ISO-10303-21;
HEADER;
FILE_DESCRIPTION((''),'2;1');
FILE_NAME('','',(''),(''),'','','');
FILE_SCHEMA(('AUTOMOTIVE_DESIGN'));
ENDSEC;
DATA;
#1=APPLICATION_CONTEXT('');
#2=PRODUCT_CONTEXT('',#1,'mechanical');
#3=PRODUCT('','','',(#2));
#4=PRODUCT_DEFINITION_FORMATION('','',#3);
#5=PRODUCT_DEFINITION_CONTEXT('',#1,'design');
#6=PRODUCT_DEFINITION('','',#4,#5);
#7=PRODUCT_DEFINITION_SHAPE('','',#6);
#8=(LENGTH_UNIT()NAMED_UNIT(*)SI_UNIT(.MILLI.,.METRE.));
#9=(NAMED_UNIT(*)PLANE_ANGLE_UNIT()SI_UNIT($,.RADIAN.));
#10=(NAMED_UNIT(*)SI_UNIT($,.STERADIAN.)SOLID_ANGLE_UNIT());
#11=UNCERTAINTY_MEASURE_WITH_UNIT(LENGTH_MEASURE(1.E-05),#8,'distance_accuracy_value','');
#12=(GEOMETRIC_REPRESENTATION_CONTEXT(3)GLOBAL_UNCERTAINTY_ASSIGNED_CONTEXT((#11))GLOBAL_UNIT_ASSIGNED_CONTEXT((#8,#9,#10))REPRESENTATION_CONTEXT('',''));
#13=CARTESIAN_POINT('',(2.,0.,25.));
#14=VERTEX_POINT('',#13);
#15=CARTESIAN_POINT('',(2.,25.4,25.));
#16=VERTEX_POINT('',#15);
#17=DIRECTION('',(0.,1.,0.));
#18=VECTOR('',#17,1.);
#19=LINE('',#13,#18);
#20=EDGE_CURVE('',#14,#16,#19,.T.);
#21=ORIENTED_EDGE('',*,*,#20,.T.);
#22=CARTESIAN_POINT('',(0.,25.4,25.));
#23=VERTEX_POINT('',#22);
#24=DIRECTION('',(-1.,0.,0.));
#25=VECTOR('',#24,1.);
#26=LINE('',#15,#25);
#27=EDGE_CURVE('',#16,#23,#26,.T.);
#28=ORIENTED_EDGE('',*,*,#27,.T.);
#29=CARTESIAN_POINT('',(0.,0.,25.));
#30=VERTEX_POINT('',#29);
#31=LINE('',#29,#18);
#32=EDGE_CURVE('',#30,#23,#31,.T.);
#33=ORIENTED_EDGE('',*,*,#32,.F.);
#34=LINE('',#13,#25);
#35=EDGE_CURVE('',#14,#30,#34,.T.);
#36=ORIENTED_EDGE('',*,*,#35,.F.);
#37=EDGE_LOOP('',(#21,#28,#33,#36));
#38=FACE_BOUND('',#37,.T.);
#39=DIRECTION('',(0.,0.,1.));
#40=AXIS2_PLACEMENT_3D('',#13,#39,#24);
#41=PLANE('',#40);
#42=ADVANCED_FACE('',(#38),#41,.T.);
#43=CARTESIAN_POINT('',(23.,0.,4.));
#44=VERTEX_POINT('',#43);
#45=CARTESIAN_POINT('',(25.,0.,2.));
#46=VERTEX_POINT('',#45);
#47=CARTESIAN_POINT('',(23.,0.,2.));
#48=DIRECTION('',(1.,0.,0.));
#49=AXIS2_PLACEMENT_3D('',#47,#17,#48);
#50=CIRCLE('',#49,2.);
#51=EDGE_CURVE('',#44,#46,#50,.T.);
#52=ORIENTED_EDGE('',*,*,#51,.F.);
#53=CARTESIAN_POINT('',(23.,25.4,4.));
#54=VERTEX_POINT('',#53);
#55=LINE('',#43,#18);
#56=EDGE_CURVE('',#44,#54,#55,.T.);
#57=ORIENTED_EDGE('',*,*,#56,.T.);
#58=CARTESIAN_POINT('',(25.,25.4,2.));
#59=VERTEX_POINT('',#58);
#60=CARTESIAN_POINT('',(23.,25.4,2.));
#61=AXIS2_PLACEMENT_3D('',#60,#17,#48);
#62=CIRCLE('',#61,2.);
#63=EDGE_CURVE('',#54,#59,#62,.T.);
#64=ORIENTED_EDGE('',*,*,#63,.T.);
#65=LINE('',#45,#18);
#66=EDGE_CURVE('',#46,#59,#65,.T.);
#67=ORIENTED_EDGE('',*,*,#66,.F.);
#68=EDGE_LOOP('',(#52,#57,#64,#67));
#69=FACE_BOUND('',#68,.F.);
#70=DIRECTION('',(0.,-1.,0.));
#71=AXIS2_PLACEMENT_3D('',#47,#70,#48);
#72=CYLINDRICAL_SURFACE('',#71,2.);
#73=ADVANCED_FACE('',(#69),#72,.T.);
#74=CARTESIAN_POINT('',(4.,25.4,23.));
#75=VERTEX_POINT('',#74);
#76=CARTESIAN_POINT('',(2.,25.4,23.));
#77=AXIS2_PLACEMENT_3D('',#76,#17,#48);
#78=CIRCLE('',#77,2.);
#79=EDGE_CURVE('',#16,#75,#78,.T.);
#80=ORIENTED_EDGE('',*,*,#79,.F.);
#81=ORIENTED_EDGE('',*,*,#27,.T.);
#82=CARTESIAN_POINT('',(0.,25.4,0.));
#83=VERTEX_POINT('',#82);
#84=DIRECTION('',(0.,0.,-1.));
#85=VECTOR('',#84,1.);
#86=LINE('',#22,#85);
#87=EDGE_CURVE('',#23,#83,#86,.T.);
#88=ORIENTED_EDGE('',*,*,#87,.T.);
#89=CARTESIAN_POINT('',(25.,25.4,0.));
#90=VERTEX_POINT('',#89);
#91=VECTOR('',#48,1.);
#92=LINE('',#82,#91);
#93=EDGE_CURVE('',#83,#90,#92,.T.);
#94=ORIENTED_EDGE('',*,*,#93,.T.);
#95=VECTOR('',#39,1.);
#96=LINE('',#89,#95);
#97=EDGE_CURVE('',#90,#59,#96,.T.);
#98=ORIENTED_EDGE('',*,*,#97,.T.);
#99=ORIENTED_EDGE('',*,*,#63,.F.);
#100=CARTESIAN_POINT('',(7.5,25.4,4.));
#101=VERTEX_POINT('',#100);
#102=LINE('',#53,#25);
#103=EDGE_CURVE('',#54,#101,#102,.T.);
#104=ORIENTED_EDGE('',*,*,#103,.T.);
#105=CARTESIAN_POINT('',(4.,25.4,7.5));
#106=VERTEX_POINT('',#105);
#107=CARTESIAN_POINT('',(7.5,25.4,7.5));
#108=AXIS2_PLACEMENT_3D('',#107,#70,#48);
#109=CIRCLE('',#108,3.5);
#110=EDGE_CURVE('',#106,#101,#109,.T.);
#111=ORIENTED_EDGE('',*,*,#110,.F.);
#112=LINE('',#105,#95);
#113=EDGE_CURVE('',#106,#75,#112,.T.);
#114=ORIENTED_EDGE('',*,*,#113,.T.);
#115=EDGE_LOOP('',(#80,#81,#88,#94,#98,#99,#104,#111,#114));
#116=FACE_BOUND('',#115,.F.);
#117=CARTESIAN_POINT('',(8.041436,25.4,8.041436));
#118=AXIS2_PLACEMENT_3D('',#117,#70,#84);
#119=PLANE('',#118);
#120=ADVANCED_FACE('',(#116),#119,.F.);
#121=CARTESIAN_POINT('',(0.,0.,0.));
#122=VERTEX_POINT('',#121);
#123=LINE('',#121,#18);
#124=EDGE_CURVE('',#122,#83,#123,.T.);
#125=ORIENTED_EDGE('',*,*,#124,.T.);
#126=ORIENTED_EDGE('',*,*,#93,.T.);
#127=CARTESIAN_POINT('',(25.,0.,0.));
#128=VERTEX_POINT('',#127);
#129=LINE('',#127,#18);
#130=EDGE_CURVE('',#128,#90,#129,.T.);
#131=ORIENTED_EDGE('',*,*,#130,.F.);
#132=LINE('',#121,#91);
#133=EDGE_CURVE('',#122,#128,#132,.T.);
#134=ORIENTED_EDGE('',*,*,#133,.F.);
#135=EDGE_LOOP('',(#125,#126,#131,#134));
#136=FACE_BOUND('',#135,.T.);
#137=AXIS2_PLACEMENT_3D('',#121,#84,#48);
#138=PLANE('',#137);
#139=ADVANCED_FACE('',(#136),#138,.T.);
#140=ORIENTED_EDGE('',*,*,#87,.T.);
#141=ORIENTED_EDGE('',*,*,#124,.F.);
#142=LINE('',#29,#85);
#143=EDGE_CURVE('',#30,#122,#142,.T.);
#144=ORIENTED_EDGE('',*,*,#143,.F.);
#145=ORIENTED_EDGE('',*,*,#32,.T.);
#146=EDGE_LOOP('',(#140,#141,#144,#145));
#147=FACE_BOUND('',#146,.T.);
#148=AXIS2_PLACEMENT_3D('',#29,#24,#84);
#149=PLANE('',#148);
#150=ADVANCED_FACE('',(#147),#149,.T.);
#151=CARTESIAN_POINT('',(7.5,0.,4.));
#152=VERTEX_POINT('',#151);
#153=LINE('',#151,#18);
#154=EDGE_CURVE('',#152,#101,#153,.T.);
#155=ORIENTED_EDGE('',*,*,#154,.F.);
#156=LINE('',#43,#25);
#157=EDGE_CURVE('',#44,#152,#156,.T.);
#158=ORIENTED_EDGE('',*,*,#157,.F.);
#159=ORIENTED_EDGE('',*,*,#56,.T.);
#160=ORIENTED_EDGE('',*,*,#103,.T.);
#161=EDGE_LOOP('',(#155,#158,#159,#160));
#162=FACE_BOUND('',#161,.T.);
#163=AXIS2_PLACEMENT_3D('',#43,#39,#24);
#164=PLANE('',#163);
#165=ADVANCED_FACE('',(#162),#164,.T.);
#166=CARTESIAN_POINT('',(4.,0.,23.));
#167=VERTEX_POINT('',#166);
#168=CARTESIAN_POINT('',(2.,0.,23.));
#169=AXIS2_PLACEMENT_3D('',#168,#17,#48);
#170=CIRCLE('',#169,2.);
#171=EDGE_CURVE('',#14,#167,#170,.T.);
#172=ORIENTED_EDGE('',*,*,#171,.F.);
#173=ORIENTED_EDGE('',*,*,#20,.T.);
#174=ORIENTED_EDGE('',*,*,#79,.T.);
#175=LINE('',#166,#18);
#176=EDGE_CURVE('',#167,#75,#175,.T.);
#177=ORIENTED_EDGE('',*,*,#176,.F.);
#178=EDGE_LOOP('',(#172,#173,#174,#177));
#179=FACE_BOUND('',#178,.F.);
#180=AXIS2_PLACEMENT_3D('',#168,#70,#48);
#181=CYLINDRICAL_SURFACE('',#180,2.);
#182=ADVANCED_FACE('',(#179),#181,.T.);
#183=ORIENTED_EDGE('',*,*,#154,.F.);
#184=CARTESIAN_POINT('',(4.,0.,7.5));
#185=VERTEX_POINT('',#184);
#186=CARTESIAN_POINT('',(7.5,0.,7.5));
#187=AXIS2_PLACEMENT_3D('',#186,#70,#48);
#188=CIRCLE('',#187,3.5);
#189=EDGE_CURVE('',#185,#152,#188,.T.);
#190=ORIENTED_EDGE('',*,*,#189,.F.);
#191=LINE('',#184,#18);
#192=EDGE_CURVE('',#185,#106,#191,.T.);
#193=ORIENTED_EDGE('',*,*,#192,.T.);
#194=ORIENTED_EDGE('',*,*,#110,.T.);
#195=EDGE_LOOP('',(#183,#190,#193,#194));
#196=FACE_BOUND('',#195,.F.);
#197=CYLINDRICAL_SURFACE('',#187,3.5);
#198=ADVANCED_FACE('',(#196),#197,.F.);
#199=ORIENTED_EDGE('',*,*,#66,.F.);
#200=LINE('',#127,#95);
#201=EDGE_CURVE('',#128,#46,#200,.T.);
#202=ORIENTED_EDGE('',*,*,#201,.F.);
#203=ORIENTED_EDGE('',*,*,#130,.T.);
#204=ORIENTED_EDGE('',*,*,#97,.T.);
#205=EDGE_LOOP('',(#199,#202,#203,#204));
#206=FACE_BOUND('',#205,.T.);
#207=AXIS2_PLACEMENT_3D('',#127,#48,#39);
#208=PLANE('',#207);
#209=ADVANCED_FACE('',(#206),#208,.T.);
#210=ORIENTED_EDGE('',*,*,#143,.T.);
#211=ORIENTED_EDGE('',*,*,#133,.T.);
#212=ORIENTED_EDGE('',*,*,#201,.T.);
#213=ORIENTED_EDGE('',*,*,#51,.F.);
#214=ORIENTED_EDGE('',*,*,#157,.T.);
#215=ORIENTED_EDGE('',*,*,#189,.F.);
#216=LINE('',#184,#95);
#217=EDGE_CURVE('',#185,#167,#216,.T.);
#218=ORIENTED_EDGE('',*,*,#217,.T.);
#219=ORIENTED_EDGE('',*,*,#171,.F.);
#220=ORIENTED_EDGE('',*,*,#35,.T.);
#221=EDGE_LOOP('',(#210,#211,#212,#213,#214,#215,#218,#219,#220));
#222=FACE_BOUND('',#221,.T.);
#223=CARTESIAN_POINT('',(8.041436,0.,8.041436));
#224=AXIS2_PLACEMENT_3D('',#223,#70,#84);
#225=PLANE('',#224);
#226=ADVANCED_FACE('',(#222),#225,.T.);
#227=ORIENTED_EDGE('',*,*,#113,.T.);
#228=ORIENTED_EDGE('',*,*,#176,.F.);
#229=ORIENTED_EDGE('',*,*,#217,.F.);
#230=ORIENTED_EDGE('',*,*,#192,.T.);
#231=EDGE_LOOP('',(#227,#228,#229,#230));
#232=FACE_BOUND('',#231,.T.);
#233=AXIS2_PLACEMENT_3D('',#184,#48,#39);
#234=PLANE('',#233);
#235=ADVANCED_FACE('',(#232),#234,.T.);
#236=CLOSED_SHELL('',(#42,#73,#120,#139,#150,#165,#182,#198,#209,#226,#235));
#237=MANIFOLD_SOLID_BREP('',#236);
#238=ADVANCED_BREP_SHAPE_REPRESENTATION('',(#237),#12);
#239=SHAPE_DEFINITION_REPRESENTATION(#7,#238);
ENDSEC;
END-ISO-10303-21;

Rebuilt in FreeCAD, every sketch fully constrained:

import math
import FreeCAD as App
import Part
import Sketcher
Q = App.Units.Quantity

doc = App.newDocument("Part")
body = doc.addObject("PartDesign::Body", "Body")

# Sketch on XZ plane
sketch1 = doc.addObject("Sketcher::SketchObject", "Sketch")
body.addObject(sketch1)
sketch1.AttachmentSupport = (doc.XZ_Plane, [""])
sketch1.MapMode = "FlatFace"
sketch1.addGeometry(Part.LineSegment(App.Vector(0, 0, 0), App.Vector(25, 0, 0)), False)
sketch1.addGeometry(Part.LineSegment(App.Vector(25, 0, 0), App.Vector(25, 2, 0)), False)
sketch1.addGeometry(Part.ArcOfCircle(Part.Circle(App.Vector(23, 2, 0), App.Vector(0, 0, 1), 2), math.radians(0), math.radians(90)), False)
sketch1.addGeometry(Part.LineSegment(App.Vector(23, 4, 0), App.Vector(7.5, 4, 0)), False)
sketch1.addGeometry(Part.ArcOfCircle(Part.Circle(App.Vector(7.5, 7.5, 0), App.Vector(0, 0, 1), 3.5), math.radians(180), math.radians(270)), False)
sketch1.addGeometry(Part.LineSegment(App.Vector(4, 7.5, 0), App.Vector(4, 23, 0)), False)
sketch1.addGeometry(Part.ArcOfCircle(Part.Circle(App.Vector(2, 23, 0), App.Vector(0, 0, 1), 2), math.radians(0), math.radians(90)), False)
sketch1.addGeometry(Part.LineSegment(App.Vector(2, 25, 0), App.Vector(0, 25, 0)), False)
sketch1.addGeometry(Part.LineSegment(App.Vector(0, 25, 0), App.Vector(0, 0, 0)), False)
sketch1.addConstraint(Sketcher.Constraint("Coincident", 0, 2, 1, 1))
sketch1.addConstraint(Sketcher.Constraint("Tangent", 1, 2, 2, 1))
sketch1.addConstraint(Sketcher.Constraint("Tangent", 2, 2, 3, 1))
sketch1.addConstraint(Sketcher.Constraint("Tangent", 3, 2, 4, 2))
sketch1.addConstraint(Sketcher.Constraint("Tangent", 4, 1, 5, 1))
sketch1.addConstraint(Sketcher.Constraint("Tangent", 5, 2, 6, 1))
sketch1.addConstraint(Sketcher.Constraint("Tangent", 6, 2, 7, 1))
sketch1.addConstraint(Sketcher.Constraint("Coincident", 7, 2, 8, 1))
sketch1.addConstraint(Sketcher.Constraint("Coincident", 8, 2, 0, 1))
sketch1.addConstraint(Sketcher.Constraint("Horizontal", 0))
sketch1.addConstraint(Sketcher.Constraint("Vertical", 1))
sketch1.addConstraint(Sketcher.Constraint("Horizontal", 3))
sketch1.addConstraint(Sketcher.Constraint("Vertical", 5))
sketch1.addConstraint(Sketcher.Constraint("Horizontal", 7))
sketch1.addConstraint(Sketcher.Constraint("Vertical", 8))
sketch1.addConstraint(Sketcher.Constraint("Coincident", 8, 2, -1, 1))
sketch1.addConstraint(Sketcher.Constraint("Equal", 2, 6))
sketch1.addConstraint(Sketcher.Constraint("Equal", 7, 1))
sketch1.addConstraint(Sketcher.Constraint("Equal", 3, 5))
sketch1.addConstraint(Sketcher.Constraint("Radius", 2, Q("2 mm")))
sketch1.addConstraint(Sketcher.Constraint("Radius", 4, Q("3.5 mm")))
sketch1.addConstraint(Sketcher.Constraint("DistanceX", 0, 1, 0, 2, Q("25 mm")))
sketch1.addConstraint(Sketcher.Constraint("DistanceX", 7, 2, 7, 1, Q("2 mm")))
pad1 = doc.addObject("PartDesign::Pad", "Pad")
body.addObject(pad1)
pad1.Profile = sketch1
pad1.Length = 25.4
pad1.Reversed = True

doc.recompute()
